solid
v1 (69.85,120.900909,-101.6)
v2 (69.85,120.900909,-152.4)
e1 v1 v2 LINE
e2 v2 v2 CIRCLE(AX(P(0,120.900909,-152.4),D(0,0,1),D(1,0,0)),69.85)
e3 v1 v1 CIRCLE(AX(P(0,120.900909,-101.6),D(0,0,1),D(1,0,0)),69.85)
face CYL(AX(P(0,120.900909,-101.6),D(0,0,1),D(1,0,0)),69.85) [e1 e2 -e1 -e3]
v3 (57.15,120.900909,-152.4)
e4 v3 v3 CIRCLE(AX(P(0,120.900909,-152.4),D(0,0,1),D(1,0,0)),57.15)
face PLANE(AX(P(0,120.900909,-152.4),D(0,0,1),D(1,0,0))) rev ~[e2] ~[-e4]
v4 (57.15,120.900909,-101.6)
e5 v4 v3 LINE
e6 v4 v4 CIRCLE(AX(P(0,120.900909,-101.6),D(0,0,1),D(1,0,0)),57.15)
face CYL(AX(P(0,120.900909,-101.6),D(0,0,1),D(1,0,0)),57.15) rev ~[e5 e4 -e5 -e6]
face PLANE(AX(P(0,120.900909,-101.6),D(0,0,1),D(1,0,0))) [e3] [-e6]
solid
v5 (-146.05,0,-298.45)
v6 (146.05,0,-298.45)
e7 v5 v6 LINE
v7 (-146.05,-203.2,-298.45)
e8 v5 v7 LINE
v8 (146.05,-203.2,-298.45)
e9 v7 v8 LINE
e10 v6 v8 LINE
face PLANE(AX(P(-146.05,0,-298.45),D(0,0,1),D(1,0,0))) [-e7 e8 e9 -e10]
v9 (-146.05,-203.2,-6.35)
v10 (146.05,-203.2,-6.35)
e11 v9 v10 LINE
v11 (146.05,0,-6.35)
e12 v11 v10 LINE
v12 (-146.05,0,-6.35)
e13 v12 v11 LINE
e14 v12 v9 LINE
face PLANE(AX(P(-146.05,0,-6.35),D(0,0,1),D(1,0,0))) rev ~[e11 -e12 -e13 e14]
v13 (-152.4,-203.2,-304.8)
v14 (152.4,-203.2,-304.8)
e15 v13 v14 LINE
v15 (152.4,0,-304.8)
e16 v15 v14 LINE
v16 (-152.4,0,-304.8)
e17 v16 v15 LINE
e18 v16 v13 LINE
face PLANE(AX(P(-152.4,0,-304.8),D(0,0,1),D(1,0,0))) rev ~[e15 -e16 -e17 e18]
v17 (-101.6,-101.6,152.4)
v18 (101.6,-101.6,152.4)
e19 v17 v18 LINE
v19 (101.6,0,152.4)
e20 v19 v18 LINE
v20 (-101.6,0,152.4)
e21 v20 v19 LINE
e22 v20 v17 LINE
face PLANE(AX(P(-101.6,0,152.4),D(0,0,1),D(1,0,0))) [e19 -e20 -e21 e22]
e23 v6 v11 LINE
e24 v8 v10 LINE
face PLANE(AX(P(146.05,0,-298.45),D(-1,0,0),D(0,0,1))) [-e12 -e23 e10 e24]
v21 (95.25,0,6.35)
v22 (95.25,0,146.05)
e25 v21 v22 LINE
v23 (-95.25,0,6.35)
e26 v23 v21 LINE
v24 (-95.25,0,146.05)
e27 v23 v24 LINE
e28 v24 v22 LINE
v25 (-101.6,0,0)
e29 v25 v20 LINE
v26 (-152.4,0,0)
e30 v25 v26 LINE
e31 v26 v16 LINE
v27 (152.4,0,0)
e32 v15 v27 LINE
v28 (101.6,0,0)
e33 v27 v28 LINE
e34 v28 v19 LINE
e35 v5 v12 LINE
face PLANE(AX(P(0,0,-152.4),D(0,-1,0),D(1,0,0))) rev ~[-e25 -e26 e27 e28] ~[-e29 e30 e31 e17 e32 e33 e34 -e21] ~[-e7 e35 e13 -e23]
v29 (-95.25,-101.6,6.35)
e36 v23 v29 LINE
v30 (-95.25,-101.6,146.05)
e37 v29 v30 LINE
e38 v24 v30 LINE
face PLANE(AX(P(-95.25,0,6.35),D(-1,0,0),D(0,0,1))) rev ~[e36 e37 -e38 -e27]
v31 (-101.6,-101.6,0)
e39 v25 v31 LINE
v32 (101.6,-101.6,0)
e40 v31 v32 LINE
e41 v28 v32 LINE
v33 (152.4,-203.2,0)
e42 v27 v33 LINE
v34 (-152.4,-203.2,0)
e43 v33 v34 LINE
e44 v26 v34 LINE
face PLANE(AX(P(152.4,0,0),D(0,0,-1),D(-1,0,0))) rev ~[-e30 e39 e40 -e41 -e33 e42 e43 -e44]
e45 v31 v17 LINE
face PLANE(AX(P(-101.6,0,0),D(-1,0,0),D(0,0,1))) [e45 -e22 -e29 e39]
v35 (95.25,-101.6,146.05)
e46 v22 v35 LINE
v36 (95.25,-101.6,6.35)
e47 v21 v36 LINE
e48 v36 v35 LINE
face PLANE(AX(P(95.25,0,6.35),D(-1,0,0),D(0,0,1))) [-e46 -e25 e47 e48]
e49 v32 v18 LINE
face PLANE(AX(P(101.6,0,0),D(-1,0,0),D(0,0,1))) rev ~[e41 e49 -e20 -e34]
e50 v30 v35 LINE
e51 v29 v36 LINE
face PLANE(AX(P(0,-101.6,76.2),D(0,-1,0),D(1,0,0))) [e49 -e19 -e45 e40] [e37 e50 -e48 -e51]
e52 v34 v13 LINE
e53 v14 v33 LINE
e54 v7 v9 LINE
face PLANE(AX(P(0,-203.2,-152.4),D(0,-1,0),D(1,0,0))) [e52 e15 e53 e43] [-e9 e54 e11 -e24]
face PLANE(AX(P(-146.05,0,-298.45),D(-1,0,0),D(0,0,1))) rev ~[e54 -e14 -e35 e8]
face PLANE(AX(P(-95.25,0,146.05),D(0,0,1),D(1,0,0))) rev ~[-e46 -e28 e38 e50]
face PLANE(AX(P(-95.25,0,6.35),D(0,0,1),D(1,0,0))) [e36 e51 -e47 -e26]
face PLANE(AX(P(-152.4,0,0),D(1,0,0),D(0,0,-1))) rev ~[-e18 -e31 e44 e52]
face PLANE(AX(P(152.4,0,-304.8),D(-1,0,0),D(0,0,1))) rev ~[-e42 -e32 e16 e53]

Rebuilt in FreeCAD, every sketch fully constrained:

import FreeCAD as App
import Part
import Sketcher

V = App.Vector
Q = App.Units.Quantity

doc = App.newDocument("Part")
params = doc.addObject("Spreadsheet::Sheet", "Params")
for row, (alias, value) in enumerate([
    ("sketch1_width", "8 in"),
    ("sketch1_height", "6 in"),
    ("sketch1_width2", "7.5 in"),
    ("sketch1_height2", "5.5 in"),
    ("pad1_length", "4 in"),
    ("sketch2_width", "12 in"),
    ("sketch2_width2", "11.5 in"),
    ("pad2_length", "8 in"),
    ("sketch3_diameter", "5.5 in"),
    ("sketch3_diameter2", "4.5 in"),
    ("pad3_length", "2 in"),
], start=1):
    params.set(f"A{row}", alias)
    params.set(f"B{row}", "=" + value)
    params.setAlias(f"B{row}", alias)

body = doc.addObject("PartDesign::Body", "Body")

sketch1 = doc.addObject("Sketcher::SketchObject", "Sketch")
body.addObject(sketch1)
sketch1.AttachmentSupport = (doc.XZ_Plane, [""])
sketch1.MapMode = "FlatFace"
sketch1.addGeometry([
    Part.LineSegment(V(-102, 152, 0), V(-102, 0, 0)),
    Part.LineSegment(V(-102, 0, 0), V(102, 0, 0)),
    Part.LineSegment(V(102, 0, 0), V(102, 152, 0)),
    Part.LineSegment(V(102, 152, 0), V(-102, 152, 0)),
    Part.LineSegment(V(95, 6, 0), V(-95, 6, 0)),
    Part.LineSegment(V(-95, 6, 0), V(-95, 146, 0)),
    Part.LineSegment(V(-95, 146, 0), V(95, 146, 0)),
    Part.LineSegment(V(95, 146, 0), V(95, 6, 0)),
], False)
sketch1.addConstraint([
    Sketcher.Constraint("Coincident", 0, 2, 1, 1),
    Sketcher.Constraint("Coincident", 1, 2, 2, 1),
    Sketcher.Constraint("Coincident", 2, 2, 3, 1),
    Sketcher.Constraint("Coincident", 3, 2, 0, 1),
    Sketcher.Constraint("Coincident", 4, 2, 5, 1),
    Sketcher.Constraint("Coincident", 5, 2, 6, 1),
    Sketcher.Constraint("Coincident", 6, 2, 7, 1),
    Sketcher.Constraint("Coincident", 7, 2, 4, 1),
    Sketcher.Constraint("Vertical", 0),
    Sketcher.Constraint("Horizontal", 1),
    Sketcher.Constraint("Vertical", 2),
    Sketcher.Constraint("Horizontal", 3),
    Sketcher.Constraint("Horizontal", 4),
    Sketcher.Constraint("Vertical", 5),
    Sketcher.Constraint("Horizontal", 6),
    Sketcher.Constraint("Vertical", 7),
    Sketcher.Constraint("Symmetric", 0, 2, 1, 2, -1, 1),
    Sketcher.Constraint("DistanceX", 1, 1, 1, 2, Q("8 in")),
    Sketcher.Constraint("DistanceY", 0, 2, 0, 1, Q("6 in")),
    Sketcher.Constraint("DistanceX", 4, 2, 4, 1, Q("7.5 in")),
    Sketcher.Constraint("DistanceY", 5, 1, 5, 2, Q("5.5 in")),
    Sketcher.Constraint("DistanceX", 4, 2, -1, 1, Q("3.75 in")),
    Sketcher.Constraint("DistanceY", -1, 1, 4, 2, Q("0.25 in")),
])
sketch1.setExpression("Constraints[17]", "Params.sketch1_width")
sketch1.setExpression("Constraints[18]", "Params.sketch1_height")
sketch1.setExpression("Constraints[19]", "Params.sketch1_width2")
sketch1.setExpression("Constraints[20]", "Params.sketch1_height2")
pad1 = doc.addObject("PartDesign::Pad", "Pad")
body.addObject(pad1)
pad1.Profile = sketch1
pad1.setExpression("Length", "Params.pad1_length")

sketch2 = doc.addObject("Sketcher::SketchObject", "Sketch001")
body.addObject(sketch2)
sketch2.AttachmentSupport = (doc.XZ_Plane, [""])
sketch2.MapMode = "FlatFace"
sketch2.addGeometry([
    Part.LineSegment(V(-152, 0, 0), V(-152, -305, 0)),
    Part.LineSegment(V(-152, -305, 0), V(152, -305, 0)),
    Part.LineSegment(V(152, -305, 0), V(152, 0, 0)),
    Part.LineSegment(V(152, 0, 0), V(-152, 0, 0)),
    Part.LineSegment(V(146, -298, 0), V(-146, -298, 0)),
    Part.LineSegment(V(-146, -298, 0), V(-146, -6, 0)),
    Part.LineSegment(V(-146, -6, 0), V(146, -6, 0)),
    Part.LineSegment(V(146, -6, 0), V(146, -298, 0)),
], False)
sketch2.addConstraint([
    Sketcher.Constraint("Coincident", 0, 2, 1, 1),
    Sketcher.Constraint("Coincident", 1, 2, 2, 1),
    Sketcher.Constraint("Coincident", 2, 2, 3, 1),
    Sketcher.Constraint("Coincident", 3, 2, 0, 1),
    Sketcher.Constraint("Coincident", 4, 2, 5, 1),
    Sketcher.Constraint("Coincident", 5, 2, 6, 1),
    Sketcher.Constraint("Coincident", 6, 2, 7, 1),
    Sketcher.Constraint("Coincident", 7, 2, 4, 1),
    Sketcher.Constraint("Vertical", 0),
    Sketcher.Constraint("Horizontal", 1),
    Sketcher.Constraint("Vertical", 2),
    Sketcher.Constraint("Horizontal", 3),
    Sketcher.Constraint("Horizontal", 4),
    Sketcher.Constraint("Vertical", 5),
    Sketcher.Constraint("Horizontal", 6),
    Sketcher.Constraint("Vertical", 7),
    Sketcher.Constraint("Symmetric", 2, 2, 3, 2, -1, 1),
    Sketcher.Constraint("Equal", 3, 0),
    Sketcher.Constraint("Equal", 6, 5),
    Sketcher.Constraint("DistanceX", 1, 1, 1, 2, Q("12 in")),
    Sketcher.Constraint("DistanceX", 4, 2, 4, 1, Q("11.5 in")),
    Sketcher.Constraint("DistanceX", 4, 2, -1, 1, Q("5.75 in")),
    Sketcher.Constraint("DistanceY", 4, 2, -1, 1, Q("11.75 in")),
])
sketch2.setExpression("Constraints[19]", "Params.sketch2_width")
sketch2.setExpression("Constraints[20]", "Params.sketch2_width2")
pad2 = doc.addObject("PartDesign::Pad", "Pad001")
body.addObject(pad2)
pad2.Profile = sketch2
pad2.setExpression("Length", "Params.pad2_length")
body2 = doc.addObject("PartDesign::Body", "Body001")

sketch3 = doc.addObject("Sketcher::SketchObject", "Sketch002")
body2.addObject(sketch3)
sketch3.AttachmentSupport = (doc.getObject("XY_Plane001"), [""])
sketch3.MapMode = "FlatFace"
sketch3.AttachmentOffset = App.Placement(V(0, 0, -4 * 25.4), App.Rotation())
sketch3.addGeometry([
    Part.Circle(V(0, 121, 0), V(0, 0, 1), 70),
    Part.Circle(V(0, 121, 0), V(0, 0, 1), 57),
], False)
sketch3.addConstraint([
    Sketcher.Constraint("Coincident", 1, 3, 0, 3),
    Sketcher.Constraint("PointOnObject", 0, 3, -2),
    Sketcher.Constraint("Diameter", 0, Q("5.5 in")),
    Sketcher.Constraint("Diameter", 1, Q("4.5 in")),
    Sketcher.Constraint("DistanceY", -1, 1, 0, 3, 120.900909),
])
sketch3.setExpression("Constraints[2]", "Params.sketch3_diameter")
sketch3.setExpression("Constraints[3]", "Params.sketch3_diameter2")
pad3 = doc.addObject("PartDesign::Pad", "Pad002")
body2.addObject(pad3)
pad3.Profile = sketch3
pad3.setExpression("Length", "Params.pad3_length")
pad3.Reversed = True

doc.recompute()
